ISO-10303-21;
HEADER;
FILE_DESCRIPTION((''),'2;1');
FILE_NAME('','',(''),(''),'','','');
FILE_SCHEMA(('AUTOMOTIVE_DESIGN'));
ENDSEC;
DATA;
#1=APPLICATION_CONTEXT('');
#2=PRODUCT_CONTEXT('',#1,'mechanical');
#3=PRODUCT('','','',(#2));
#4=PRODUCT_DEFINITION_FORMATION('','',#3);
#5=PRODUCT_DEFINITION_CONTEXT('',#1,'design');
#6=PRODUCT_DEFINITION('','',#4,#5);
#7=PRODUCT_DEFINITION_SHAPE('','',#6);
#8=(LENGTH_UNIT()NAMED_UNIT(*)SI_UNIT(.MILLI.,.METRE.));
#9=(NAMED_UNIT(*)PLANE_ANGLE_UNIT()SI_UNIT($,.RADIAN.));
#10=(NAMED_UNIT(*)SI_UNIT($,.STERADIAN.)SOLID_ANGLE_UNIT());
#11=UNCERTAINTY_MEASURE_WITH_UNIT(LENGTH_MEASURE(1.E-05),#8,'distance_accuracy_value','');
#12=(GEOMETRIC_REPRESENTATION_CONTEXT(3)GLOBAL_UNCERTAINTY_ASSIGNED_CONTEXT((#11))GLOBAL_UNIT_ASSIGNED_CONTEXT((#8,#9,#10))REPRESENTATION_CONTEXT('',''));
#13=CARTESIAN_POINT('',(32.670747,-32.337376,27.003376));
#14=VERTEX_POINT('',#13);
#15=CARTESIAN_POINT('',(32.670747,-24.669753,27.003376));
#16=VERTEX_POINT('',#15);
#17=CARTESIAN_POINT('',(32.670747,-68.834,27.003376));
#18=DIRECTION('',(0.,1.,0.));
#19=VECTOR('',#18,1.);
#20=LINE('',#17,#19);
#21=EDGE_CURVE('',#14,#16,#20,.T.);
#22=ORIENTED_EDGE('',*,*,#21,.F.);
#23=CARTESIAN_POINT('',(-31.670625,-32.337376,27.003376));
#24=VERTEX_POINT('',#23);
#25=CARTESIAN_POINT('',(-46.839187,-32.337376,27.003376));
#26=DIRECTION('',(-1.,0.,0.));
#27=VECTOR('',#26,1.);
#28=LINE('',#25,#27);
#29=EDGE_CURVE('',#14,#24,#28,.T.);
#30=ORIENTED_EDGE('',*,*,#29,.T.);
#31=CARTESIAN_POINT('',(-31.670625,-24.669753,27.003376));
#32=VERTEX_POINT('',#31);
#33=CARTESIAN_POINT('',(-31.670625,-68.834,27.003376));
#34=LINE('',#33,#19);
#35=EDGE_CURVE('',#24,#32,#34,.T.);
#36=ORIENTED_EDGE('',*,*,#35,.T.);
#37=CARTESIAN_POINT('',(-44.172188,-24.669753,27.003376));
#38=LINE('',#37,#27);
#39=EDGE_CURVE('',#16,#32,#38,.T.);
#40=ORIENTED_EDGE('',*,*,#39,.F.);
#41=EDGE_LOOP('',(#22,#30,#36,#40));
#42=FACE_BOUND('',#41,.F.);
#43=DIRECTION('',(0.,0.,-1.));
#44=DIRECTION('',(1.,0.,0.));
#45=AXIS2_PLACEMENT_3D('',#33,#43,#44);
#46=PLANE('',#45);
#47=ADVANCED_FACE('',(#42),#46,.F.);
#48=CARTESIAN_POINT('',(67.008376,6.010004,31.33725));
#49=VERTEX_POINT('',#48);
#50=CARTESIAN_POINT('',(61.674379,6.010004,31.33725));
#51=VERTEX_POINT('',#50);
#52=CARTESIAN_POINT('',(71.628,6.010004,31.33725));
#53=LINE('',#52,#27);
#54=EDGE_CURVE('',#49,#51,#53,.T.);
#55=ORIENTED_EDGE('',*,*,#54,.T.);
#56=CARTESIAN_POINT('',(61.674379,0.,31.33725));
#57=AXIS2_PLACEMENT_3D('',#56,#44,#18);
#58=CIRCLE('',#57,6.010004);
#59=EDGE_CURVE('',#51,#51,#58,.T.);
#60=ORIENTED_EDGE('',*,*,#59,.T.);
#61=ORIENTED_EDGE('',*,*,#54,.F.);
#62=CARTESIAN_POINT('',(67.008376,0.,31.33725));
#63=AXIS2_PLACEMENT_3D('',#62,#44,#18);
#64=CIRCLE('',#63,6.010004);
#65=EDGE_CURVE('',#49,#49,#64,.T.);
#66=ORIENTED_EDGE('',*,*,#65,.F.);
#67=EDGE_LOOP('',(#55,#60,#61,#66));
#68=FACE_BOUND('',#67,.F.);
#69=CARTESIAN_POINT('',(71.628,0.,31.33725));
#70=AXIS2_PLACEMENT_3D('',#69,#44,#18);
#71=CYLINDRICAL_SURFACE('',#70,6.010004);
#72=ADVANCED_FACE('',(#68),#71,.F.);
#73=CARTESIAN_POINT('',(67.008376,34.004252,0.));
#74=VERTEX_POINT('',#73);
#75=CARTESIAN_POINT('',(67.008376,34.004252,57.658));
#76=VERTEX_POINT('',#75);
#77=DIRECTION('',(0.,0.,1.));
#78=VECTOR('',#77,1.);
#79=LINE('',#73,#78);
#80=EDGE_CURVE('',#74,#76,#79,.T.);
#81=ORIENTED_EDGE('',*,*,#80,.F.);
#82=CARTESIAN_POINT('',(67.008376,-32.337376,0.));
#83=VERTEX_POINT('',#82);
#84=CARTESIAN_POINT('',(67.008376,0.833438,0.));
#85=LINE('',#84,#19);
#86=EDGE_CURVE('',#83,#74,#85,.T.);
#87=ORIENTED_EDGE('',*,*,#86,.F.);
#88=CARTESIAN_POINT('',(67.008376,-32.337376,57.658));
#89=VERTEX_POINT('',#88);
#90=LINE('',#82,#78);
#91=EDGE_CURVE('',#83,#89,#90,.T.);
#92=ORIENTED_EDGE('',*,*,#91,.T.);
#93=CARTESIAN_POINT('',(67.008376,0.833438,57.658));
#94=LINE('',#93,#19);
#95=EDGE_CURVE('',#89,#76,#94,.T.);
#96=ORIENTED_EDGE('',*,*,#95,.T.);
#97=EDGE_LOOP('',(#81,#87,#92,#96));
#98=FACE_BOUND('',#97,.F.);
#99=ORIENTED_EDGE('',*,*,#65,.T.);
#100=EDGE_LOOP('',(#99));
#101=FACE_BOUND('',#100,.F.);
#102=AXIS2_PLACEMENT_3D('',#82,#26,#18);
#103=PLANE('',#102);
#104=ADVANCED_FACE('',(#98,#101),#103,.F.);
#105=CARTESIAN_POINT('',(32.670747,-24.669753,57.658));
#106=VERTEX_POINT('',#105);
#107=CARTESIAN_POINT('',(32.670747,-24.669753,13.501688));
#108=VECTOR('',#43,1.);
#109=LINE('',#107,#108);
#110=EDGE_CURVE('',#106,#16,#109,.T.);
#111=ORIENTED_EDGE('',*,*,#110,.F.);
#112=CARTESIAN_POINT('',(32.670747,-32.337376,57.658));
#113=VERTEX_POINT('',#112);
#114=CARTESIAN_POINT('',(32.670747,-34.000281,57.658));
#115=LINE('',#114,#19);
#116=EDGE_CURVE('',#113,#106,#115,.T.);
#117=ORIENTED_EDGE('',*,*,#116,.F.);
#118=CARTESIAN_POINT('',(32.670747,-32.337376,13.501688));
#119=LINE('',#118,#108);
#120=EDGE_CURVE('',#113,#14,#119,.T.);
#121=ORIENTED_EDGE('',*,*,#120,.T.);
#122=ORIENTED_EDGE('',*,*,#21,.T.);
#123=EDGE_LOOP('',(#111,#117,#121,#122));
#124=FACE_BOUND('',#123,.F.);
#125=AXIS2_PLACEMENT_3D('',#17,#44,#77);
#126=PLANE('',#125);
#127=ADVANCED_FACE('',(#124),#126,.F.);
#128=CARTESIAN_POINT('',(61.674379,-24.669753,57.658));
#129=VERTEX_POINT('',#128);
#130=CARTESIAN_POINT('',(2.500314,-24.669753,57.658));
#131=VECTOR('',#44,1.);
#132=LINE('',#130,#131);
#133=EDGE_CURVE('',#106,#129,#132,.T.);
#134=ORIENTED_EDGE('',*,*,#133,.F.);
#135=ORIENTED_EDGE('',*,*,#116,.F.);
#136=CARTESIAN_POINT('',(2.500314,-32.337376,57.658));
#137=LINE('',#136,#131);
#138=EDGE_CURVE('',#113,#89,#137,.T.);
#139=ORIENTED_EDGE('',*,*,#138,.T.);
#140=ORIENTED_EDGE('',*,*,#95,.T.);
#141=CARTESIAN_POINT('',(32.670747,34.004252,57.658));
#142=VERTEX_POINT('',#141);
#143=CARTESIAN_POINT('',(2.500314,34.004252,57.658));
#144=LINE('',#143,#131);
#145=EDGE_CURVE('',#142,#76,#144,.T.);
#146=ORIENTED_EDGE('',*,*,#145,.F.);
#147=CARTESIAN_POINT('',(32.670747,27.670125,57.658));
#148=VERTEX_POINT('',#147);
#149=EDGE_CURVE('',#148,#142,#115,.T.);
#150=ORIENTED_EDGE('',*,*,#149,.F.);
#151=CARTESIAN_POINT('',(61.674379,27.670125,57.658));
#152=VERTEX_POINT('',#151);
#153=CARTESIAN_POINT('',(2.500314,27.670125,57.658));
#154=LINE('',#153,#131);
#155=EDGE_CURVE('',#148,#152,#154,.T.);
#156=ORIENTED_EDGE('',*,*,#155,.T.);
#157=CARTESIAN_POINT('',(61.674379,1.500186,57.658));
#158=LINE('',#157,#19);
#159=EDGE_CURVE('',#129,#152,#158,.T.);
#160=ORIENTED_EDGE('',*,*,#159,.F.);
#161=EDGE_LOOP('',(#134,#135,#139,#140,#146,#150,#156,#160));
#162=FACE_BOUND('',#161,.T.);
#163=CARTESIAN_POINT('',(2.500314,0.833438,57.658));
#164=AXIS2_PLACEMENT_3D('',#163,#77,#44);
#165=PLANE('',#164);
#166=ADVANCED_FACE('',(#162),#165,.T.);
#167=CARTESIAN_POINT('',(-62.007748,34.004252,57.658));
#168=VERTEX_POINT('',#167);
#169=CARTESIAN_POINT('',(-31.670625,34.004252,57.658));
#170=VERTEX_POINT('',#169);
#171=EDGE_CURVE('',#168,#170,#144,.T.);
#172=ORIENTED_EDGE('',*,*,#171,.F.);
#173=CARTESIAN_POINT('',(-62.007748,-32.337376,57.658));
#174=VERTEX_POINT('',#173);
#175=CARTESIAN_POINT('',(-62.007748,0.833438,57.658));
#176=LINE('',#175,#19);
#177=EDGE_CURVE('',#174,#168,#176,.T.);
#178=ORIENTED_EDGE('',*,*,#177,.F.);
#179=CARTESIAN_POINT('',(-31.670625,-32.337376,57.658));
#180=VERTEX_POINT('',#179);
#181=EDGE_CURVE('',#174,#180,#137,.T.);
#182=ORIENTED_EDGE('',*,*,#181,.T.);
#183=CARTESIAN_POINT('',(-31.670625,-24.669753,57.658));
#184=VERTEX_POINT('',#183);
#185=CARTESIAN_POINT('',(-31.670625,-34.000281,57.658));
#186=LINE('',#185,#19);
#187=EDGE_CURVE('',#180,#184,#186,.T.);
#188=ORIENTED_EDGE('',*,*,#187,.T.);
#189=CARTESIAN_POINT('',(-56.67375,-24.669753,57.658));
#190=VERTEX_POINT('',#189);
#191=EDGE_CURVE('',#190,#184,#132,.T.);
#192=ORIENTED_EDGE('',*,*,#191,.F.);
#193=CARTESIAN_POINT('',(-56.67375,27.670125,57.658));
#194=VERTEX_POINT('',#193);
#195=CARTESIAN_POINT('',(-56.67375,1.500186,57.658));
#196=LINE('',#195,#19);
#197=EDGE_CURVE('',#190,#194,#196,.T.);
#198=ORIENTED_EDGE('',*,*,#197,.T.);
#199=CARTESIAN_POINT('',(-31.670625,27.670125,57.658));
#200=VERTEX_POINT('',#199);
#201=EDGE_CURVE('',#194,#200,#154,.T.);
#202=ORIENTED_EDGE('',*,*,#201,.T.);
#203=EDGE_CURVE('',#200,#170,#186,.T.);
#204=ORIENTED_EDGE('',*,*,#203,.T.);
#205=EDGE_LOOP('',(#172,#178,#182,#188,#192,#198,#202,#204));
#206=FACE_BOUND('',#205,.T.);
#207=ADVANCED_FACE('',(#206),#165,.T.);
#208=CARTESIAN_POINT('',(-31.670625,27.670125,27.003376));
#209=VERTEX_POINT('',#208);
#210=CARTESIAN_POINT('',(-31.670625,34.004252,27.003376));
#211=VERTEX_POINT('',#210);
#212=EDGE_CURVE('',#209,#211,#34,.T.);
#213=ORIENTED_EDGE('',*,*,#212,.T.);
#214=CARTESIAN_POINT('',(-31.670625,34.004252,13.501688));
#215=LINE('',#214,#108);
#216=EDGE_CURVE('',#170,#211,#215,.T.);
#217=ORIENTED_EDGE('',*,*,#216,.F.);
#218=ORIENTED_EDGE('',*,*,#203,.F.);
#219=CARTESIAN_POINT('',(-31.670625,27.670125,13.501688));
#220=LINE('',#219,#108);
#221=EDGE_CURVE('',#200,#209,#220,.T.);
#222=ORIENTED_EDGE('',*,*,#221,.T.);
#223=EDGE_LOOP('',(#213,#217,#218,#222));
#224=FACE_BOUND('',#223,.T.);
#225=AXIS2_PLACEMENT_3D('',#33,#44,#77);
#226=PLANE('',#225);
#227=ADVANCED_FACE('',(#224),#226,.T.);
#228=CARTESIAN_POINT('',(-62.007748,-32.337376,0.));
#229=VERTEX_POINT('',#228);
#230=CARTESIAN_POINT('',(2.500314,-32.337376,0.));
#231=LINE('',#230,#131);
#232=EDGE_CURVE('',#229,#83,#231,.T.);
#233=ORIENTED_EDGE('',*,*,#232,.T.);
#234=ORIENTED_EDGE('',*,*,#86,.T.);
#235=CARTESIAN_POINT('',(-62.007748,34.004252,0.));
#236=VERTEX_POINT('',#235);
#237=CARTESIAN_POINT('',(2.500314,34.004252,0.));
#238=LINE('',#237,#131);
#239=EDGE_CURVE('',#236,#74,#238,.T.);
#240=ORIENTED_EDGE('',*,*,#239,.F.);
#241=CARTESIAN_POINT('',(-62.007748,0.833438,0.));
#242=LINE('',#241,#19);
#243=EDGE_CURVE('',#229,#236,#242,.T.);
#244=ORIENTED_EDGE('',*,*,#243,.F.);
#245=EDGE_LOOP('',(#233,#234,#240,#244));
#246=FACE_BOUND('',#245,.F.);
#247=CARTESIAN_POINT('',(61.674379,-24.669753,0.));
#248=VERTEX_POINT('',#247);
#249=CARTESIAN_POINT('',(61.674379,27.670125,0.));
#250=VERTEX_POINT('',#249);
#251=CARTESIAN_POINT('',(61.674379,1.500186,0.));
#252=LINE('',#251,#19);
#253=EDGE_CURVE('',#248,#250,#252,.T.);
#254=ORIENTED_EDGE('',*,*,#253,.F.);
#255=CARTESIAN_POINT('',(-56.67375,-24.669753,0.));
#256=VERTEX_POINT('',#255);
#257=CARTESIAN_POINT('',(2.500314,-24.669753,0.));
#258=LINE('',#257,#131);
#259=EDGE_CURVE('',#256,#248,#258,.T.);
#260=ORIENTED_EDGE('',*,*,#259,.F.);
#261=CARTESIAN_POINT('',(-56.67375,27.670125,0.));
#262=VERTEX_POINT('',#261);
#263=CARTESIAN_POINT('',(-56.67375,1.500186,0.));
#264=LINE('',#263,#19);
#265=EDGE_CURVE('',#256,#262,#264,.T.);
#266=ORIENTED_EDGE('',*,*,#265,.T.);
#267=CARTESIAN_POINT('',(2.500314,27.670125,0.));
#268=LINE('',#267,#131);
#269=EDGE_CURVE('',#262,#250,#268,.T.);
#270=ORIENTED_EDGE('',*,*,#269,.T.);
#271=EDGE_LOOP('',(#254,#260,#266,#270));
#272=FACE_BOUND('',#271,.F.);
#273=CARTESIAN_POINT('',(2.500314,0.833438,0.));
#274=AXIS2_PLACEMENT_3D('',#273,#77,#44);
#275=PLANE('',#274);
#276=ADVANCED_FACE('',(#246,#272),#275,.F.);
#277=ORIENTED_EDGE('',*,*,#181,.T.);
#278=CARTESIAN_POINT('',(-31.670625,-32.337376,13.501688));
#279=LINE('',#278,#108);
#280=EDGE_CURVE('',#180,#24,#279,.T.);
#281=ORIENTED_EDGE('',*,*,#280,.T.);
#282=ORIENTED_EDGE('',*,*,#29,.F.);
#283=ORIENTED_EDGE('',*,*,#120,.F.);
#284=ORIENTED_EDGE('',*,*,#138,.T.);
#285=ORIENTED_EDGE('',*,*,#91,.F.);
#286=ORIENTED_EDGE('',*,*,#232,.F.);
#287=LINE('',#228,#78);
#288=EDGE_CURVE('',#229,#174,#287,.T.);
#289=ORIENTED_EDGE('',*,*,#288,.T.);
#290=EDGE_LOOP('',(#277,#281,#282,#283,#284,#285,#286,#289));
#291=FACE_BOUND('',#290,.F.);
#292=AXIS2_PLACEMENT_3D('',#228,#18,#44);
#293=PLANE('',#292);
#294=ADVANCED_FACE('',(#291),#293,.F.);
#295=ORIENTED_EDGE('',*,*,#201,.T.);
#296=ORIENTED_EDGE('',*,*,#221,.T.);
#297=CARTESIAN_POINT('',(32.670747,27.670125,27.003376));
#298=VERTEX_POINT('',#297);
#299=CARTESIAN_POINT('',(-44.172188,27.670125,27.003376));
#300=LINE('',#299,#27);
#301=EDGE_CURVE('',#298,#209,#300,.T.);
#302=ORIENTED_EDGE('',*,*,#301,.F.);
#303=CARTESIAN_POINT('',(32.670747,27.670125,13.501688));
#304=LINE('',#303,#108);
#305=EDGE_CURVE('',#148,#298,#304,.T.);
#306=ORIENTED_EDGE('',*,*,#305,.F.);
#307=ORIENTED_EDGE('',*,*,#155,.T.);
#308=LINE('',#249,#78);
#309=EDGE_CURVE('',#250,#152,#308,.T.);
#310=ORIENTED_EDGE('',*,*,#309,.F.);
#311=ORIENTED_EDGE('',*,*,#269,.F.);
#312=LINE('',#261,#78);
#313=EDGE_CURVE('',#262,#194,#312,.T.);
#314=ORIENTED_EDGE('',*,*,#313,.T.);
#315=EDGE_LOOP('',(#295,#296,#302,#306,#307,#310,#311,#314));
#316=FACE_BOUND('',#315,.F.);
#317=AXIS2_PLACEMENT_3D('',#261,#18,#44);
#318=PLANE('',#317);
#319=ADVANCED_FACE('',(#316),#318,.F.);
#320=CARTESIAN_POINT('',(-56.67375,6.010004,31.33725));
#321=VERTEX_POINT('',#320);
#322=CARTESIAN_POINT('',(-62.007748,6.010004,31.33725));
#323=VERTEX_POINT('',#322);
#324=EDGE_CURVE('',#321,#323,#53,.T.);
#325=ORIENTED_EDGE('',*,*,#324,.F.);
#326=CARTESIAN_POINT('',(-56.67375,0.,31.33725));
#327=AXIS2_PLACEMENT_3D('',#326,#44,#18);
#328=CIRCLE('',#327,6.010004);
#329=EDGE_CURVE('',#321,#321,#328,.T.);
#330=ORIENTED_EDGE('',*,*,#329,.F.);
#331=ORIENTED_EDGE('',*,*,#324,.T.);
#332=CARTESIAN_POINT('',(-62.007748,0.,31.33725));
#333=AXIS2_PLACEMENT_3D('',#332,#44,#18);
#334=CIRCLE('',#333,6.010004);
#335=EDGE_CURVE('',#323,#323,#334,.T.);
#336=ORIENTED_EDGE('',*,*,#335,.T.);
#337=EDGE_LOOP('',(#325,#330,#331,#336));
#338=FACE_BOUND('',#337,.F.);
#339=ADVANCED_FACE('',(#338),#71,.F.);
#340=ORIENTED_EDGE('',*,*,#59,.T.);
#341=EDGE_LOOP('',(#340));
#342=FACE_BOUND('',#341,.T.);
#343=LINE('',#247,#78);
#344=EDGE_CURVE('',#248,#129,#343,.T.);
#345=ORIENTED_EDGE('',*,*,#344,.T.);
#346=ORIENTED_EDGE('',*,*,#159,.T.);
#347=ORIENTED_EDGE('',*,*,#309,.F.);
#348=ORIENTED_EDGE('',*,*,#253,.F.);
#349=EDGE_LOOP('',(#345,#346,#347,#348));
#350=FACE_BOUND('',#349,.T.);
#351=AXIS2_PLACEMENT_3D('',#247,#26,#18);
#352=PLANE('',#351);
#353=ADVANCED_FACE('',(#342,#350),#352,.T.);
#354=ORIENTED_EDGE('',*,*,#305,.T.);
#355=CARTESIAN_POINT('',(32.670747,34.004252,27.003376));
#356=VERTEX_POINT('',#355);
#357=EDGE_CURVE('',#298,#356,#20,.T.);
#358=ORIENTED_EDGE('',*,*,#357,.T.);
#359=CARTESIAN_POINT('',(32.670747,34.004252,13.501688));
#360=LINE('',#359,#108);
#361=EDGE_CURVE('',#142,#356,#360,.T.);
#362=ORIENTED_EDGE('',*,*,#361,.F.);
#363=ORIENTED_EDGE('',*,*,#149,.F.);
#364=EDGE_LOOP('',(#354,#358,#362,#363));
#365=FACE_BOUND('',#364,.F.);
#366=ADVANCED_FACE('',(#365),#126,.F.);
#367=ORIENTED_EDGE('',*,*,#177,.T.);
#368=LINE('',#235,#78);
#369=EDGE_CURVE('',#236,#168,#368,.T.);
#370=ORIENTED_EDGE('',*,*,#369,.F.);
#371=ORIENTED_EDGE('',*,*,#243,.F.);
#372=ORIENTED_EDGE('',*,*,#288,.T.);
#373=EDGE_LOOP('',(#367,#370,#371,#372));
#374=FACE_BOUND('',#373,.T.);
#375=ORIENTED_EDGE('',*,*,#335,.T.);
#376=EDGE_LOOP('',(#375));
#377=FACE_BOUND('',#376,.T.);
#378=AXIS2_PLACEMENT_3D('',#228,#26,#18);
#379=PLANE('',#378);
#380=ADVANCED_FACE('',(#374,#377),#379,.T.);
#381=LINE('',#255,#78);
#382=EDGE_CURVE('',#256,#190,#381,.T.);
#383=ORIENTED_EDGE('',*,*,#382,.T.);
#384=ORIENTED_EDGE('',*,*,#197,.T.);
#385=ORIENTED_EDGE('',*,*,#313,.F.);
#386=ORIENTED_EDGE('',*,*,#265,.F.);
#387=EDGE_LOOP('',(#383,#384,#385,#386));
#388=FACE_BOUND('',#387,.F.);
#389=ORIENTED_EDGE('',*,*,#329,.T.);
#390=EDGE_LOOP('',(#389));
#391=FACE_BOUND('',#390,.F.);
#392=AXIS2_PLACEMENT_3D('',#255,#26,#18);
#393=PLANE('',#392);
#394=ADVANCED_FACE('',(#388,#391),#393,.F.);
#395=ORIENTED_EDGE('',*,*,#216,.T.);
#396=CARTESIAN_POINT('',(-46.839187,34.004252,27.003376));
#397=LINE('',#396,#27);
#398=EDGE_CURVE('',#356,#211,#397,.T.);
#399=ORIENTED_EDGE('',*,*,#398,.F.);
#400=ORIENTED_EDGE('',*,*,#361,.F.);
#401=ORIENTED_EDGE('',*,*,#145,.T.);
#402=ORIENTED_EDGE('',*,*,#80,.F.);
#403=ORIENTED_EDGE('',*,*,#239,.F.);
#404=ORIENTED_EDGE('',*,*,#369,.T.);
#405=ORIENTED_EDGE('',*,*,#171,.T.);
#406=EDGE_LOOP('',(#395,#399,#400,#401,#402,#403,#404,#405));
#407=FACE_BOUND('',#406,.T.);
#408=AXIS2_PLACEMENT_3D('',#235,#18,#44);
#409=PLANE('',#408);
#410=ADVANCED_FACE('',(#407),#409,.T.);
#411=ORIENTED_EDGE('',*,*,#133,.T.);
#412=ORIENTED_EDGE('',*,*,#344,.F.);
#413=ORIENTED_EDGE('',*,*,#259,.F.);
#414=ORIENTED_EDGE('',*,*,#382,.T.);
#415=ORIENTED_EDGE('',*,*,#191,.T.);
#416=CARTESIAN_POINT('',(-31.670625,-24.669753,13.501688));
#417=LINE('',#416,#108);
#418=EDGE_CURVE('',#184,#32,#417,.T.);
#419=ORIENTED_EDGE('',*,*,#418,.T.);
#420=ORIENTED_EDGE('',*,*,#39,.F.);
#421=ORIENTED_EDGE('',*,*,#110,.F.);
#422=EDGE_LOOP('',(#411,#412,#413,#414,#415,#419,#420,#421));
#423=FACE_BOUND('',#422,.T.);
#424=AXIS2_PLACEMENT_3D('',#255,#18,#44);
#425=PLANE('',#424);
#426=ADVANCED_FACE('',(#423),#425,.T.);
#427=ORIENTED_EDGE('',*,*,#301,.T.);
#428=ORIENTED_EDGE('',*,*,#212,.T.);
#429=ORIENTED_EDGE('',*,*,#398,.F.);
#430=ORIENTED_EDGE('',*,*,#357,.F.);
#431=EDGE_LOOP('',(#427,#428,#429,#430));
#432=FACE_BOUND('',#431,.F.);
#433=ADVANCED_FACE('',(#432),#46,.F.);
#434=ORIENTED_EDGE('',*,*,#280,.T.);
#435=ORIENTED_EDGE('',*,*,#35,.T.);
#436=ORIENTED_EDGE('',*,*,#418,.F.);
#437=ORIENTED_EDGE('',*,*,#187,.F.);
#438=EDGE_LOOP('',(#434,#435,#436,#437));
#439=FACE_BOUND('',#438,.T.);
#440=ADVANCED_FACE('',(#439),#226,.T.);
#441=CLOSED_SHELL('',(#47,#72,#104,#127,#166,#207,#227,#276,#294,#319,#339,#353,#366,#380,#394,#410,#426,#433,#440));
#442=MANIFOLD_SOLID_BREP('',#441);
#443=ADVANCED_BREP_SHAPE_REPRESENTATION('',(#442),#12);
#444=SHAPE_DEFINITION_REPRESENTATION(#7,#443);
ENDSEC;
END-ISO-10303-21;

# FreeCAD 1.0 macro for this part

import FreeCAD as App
import Part
import Sketcher
Q = App.Units.Quantity

doc = App.newDocument("Part")
params = doc.addObject("Spreadsheet::Sheet", "Params")
for row, (alias, value) in enumerate([
    ("pad1_length", "2.27 in"),
    ("pocket1_length", "5.49 in"),
    ("pocket2_length", "9.48 in"),
], start=1):
    params.set(f"A{row}", alias)
    params.set(f"B{row}", "=" + value)
    params.setAlias(f"B{row}", alias)

body = doc.addObject("PartDesign::Body", "Body")

sketch1 = body.newObject("Sketcher::SketchObject", "Sketch")
sketch1.AttachmentSupport = (doc.getObject("XY_Plane"), [""])
sketch1.MapMode = "FlatFace"
sketch1.addGeometry(Part.LineSegment(App.Vector(-62, 34, 0), App.Vector(-62, -32, 0)), False)
sketch1.addGeometry(Part.LineSegment(App.Vector(-62, -32, 0), App.Vector(67, -32, 0)), False)
sketch1.addGeometry(Part.LineSegment(App.Vector(67, -32, 0), App.Vector(67, 34, 0)), False)
sketch1.addGeometry(Part.LineSegment(App.Vector(67, 34, 0), App.Vector(-62, 34, 0)), False)
sketch1.addGeometry(Part.LineSegment(App.Vector(62, -25, 0), App.Vector(-57, -25, 0)), False)
sketch1.addGeometry(Part.LineSegment(App.Vector(-57, -25, 0), App.Vector(-57, 28, 0)), False)
sketch1.addGeometry(Part.LineSegment(App.Vector(-57, 28, 0), App.Vector(62, 28, 0)), False)
sketch1.addGeometry(Part.LineSegment(App.Vector(62, 28, 0), App.Vector(62, -25, 0)), False)
sketch1.addConstraint(Sketcher.Constraint("Coincident", 0, 2, 1, 1))
sketch1.addConstraint(Sketcher.Constraint("Coincident", 1, 2, 2, 1))
sketch1.addConstraint(Sketcher.Constraint("Coincident", 2, 2, 3, 1))
sketch1.addConstraint(Sketcher.Constraint("Coincident", 3, 2, 0, 1))
sketch1.addConstraint(Sketcher.Constraint("Coincident", 4, 2, 5, 1))
sketch1.addConstraint(Sketcher.Constraint("Coincident", 5, 2, 6, 1))
sketch1.addConstraint(Sketcher.Constraint("Coincident", 6, 2, 7, 1))
sketch1.addConstraint(Sketcher.Constraint("Coincident", 7, 2, 4, 1))
sketch1.addConstraint(Sketcher.Constraint("Vertical", 0))
sketch1.addConstraint(Sketcher.Constraint("Horizontal", 1))
sketch1.addConstraint(Sketcher.Constraint("Vertical", 2))
sketch1.addConstraint(Sketcher.Constraint("Horizontal", 3))
sketch1.addConstraint(Sketcher.Constraint("Horizontal", 4))
sketch1.addConstraint(Sketcher.Constraint("Vertical", 5))
sketch1.addConstraint(Sketcher.Constraint("Horizontal", 6))
sketch1.addConstraint(Sketcher.Constraint("Vertical", 7))
sketch1.addConstraint(Sketcher.Constraint("DistanceX", 0, 2, 4, 2, Q("0.2099999 in")))
sketch1.addConstraint(Sketcher.Constraint("DistanceY", 4, 2, 3, 2, Q("2.3100002 in")))
sketch1.addConstraint(Sketcher.Constraint("DistanceX", 6, 2, 2, 2, Q("0.2099999 in")))
sketch1.addConstraint(Sketcher.Constraint("DistanceY", 0, 2, 5, 2, Q("2.3625 in")))
sketch1.addConstraint(Sketcher.Constraint("DistanceX", 4, 2, 4, 1, 118.348129))
sketch1.addConstraint(Sketcher.Constraint("DistanceY", 0, 2, 0, 1, 66.341627))
sketch1.addConstraint(Sketcher.Constraint("DistanceY", -1, 1, 2, 2, 34.004252))
sketch1.addConstraint(Sketcher.Constraint("DistanceX", 4, 2, -1, 1, 56.67375))
pad1 = body.newObject("PartDesign::Pad", "Pad")
pad1.Profile = sketch1
pad1.setExpression("Length", "Params.pad1_length")

sketch2 = body.newObject("Sketcher::SketchObject", "Sketch001")
sketch2.AttachmentSupport = (doc.getObject("XZ_Plane"), [""])
sketch2.MapMode = "FlatFace"
sketch2.AttachmentOffset = App.Placement(App.Vector(0, 0, 2.71 * 25.4), App.Rotation())
sketch2.addGeometry(Part.LineSegment(App.Vector(-32, 58, 0), App.Vector(-32, 27, 0)), False)
sketch2.addGeometry(Part.LineSegment(App.Vector(-32, 27, 0), App.Vector(33, 27, 0)), False)
sketch2.addGeometry(Part.LineSegment(App.Vector(33, 27, 0), App.Vector(33, 58, 0)), False)
sketch2.addGeometry(Part.LineSegment(App.Vector(33, 58, 0), App.Vector(-32, 58, 0)), False)
sketch2.addConstraint(Sketcher.Constraint("Coincident", 0, 2, 1, 1))
sketch2.addConstraint(Sketcher.Constraint("Coincident", 1, 2, 2, 1))
sketch2.addConstraint(Sketcher.Constraint("Coincident", 2, 2, 3, 1))
sketch2.addConstraint(Sketcher.Constraint("Coincident", 3, 2, 0, 1))
sketch2.addConstraint(Sketcher.Constraint("Vertical", 0))
sketch2.addConstraint(Sketcher.Constraint("Horizontal", 1))
sketch2.addConstraint(Sketcher.Constraint("Vertical", 2))
sketch2.addConstraint(Sketcher.Constraint("Horizontal", 3))
sketch2.addConstraint(Sketcher.Constraint("DistanceY", -1, 1, 2, 2, Q("2.2968751 in")))
sketch2.addConstraint(Sketcher.Constraint("DistanceX", 1, 1, 1, 2, 64.341373))
sketch2.addConstraint(Sketcher.Constraint("DistanceY", 0, 2, 0, 1, 31.337252))
sketch2.addConstraint(Sketcher.Constraint("DistanceX", 0, 2, -1, 1, 31.670625))
pocket1 = body.newObject("PartDesign::Pocket", "Pocket")
pocket1.Profile = sketch2
pocket1.setExpression("Length", "Params.pocket1_length")

sketch3 = body.newObject("Sketcher::SketchObject", "Sketch002")
sketch3.AttachmentSupport = (doc.getObject("YZ_Plane"), [""])
sketch3.MapMode = "FlatFace"
sketch3.AttachmentOffset = App.Placement(App.Vector(0, 0, 2.82 * 25.4), App.Rotation())
sketch3.addGeometry(Part.Circle(App.Vector(0, 31, 0), App.Vector(0, 0, 1), 6), False)
sketch3.addConstraint(Sketcher.Constraint("PointOnObject", 0, 3, -2))
sketch3.addConstraint(Sketcher.Constraint("Diameter", 0, 12.020008))
sketch3.addConstraint(Sketcher.Constraint("DistanceY", -1, 1, 0, 3, 31.33725))
pocket2 = body.newObject("PartDesign::Pocket", "Pocket001")
pocket2.Profile = sketch3
pocket2.setExpression("Length", "Params.pocket2_length")

doc.recompute()
